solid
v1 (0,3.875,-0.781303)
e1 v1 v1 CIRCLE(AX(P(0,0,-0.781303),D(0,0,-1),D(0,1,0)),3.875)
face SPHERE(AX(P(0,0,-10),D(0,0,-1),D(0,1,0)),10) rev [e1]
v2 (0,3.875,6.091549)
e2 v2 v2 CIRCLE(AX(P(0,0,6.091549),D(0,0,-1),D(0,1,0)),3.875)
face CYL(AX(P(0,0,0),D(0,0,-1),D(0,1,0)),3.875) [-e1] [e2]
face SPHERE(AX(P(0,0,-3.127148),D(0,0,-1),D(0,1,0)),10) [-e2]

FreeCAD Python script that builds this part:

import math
import FreeCAD as App
import Part
import Sketcher
from FreeCAD import Vector

doc = App.newDocument("Part")
params = doc.addObject("Spreadsheet::Sheet", "Params")
for row, (alias, value) in enumerate([
    ("sketch1_radius", "10 mm"),
    ("revolution_angle", "360 deg"),
], start=1):
    params.set(f"A{row}", alias)
    params.set(f"B{row}", "=" + value)
    params.setAlias(f"B{row}", alias)

body = doc.addObject("PartDesign::Body", "Body")

# Sketch on YZ plane
sketch1 = doc.addObject("Sketcher::SketchObject", "Sketch")
body.addObject(sketch1)
sketch1.AttachmentSupport = (doc.YZ_Plane, [""])
sketch1.MapMode = "FlatFace"
sketch1.addGeometry(Part.LineSegment(Vector(0, 6.872852, 0), Vector(0, 0, 0)), False)
sketch1.addGeometry(Part.ArcOfCircle(Part.Circle(Vector(0, -10, 0), Vector(0, 0, 1), 10), math.radians(67.200969), math.radians(90)), False)
sketch1.addGeometry(Part.LineSegment(Vector(3.875, -0.781303, 0), Vector(3.875, 6.091549, 0)), False)
sketch1.addGeometry(Part.ArcOfCircle(Part.Circle(Vector(0, -3.127148, 0), Vector(0, 0, 1), 10), math.radians(67.200969), math.radians(90)), False)
sketch1.addConstraint(Sketcher.Constraint("Coincident", 0, 2, 1, 2))
sketch1.addConstraint(Sketcher.Constraint("Coincident", 1, 1, 2, 1))
sketch1.addConstraint(Sketcher.Constraint("Coincident", 2, 2, 3, 1))
sketch1.addConstraint(Sketcher.Constraint("Coincident", 3, 2, 0, 1))
sketch1.addConstraint(Sketcher.Constraint("Vertical", 0))
sketch1.addConstraint(Sketcher.Constraint("Vertical", 2))
sketch1.addConstraint(Sketcher.Constraint("Coincident", 0, 2, -1, 1))
sketch1.addConstraint(Sketcher.Constraint("Equal", 1, 3))
sketch1.addConstraint(Sketcher.Constraint("PointOnObject", 1, 3, -2))
sketch1.addConstraint(Sketcher.Constraint("PointOnObject", 3, 3, -2))
sketch1.addConstraint(Sketcher.Constraint("Radius", 1, 10.0))
sketch1.addConstraint(Sketcher.Constraint("DistanceX", -1, 1, 1, 1, 3.875))
sketch1.addConstraint(Sketcher.Constraint("DistanceY", 0, 2, 0, 1, 6.872852))
sketch1.setExpression("Constraints[10]", "Params.sketch1_radius")
revolution = doc.addObject("PartDesign::Revolution", "Revolution")
body.addObject(revolution)
revolution.Profile = sketch1
revolution.ReferenceAxis = (sketch1, ["V_Axis"])
revolution.setExpression("Angle", "Params.revolution_angle")

doc.recompute()
